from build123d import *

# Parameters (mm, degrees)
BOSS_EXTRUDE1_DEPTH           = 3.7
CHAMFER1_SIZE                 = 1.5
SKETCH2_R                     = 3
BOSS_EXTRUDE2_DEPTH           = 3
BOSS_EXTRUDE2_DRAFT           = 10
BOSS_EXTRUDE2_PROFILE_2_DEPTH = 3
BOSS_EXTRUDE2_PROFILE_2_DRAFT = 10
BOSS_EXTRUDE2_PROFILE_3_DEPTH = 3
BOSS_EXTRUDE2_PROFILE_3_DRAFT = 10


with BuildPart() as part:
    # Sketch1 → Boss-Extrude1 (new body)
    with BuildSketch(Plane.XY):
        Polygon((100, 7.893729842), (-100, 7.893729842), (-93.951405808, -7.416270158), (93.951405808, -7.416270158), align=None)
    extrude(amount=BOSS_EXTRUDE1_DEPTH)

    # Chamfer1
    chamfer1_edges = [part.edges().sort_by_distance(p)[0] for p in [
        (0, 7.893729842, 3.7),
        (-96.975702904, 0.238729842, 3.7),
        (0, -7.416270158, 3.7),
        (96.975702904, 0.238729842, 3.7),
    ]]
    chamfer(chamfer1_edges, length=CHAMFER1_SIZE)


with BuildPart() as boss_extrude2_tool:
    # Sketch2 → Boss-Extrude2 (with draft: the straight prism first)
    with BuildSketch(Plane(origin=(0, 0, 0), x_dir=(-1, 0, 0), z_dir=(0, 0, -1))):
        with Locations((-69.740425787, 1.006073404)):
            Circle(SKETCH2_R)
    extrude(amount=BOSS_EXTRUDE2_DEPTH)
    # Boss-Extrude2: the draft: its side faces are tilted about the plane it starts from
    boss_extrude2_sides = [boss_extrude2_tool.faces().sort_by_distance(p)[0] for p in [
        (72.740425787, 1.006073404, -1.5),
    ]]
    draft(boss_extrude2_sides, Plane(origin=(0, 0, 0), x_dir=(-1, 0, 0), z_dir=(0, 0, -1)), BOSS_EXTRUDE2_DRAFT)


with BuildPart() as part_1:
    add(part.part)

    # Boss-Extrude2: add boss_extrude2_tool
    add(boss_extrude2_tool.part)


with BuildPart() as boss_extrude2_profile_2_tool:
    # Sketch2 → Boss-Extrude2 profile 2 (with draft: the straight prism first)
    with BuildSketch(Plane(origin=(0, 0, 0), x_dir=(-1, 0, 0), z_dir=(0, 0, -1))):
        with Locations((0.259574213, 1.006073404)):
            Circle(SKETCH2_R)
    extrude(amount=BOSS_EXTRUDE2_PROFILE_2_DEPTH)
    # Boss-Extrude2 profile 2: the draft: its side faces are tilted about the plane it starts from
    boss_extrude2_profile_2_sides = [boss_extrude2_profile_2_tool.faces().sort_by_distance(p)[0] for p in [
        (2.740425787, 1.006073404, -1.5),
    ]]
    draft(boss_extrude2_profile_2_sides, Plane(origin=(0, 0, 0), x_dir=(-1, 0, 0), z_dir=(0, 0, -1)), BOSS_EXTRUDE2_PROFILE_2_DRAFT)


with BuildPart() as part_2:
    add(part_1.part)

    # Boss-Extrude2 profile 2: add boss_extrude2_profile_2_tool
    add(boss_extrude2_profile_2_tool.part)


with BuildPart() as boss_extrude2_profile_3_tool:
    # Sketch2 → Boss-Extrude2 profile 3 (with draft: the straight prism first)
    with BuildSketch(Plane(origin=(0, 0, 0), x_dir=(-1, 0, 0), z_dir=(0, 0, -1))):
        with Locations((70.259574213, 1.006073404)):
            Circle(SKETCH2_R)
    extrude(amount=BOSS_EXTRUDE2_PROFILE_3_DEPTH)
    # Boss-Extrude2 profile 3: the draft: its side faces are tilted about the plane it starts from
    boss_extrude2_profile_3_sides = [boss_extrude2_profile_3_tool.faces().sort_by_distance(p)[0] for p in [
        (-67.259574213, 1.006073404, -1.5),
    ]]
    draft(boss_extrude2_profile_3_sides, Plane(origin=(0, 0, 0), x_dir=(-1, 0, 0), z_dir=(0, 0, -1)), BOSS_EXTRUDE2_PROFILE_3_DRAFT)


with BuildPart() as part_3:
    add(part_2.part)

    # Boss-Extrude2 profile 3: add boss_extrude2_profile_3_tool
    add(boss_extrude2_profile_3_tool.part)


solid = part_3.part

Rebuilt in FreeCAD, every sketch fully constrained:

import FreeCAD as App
import Part
import Sketcher
from FreeCAD import Vector


def edges_at(feature, points):
    """Names of the edges that pass closest to the given points."""
    edges = feature.Shape.Edges
    near = lambda p: min(range(len(edges)), key=lambda i: edges[i].distToShape(Part.Vertex(*p))[0])
    return sorted({f"Edge{near(p) + 1}" for p in points})


def faces_at(feature, points):
    """Names of the faces that lie closest to the given points."""
    faces = feature.Shape.Faces
    near = lambda p: min(range(len(faces)), key=lambda i: faces[i].distToShape(Part.Vertex(*p))[0])
    return sorted({f"Face{near(p) + 1}" for p in points})

doc = App.newDocument("Part")
params = doc.addObject("Spreadsheet::Sheet", "Params")
for row, (alias, value) in enumerate([
    ("sketch1_width", "200 mm"),
    ("pad1_length", "3.7 mm"),
    ("chamfer_size", "1.5 mm"),
    ("sketch2_diameter", "6 mm"),
    ("pad2_length", "3 mm"),
    ("draft_angle", "10 deg"),
    ("sketch3_diameter", "6 mm"),
    ("pad3_length", "3 mm"),
    ("draft2_angle", "10 deg"),
    ("sketch4_diameter", "6 mm"),
    ("pad4_length", "3 mm"),
    ("draft3_angle", "10 deg"),
], start=1):
    params.set(f"A{row}", alias)
    params.set(f"B{row}", "=" + value)
    params.setAlias(f"B{row}", alias)

body = doc.addObject("PartDesign::Body", "Body")

# Sketch on XY plane
sketch1 = doc.addObject("Sketcher::SketchObject", "Sketch")
body.addObject(sketch1)
sketch1.AttachmentSupport = (doc.XY_Plane, [""])
sketch1.MapMode = "FlatFace"
sketch1.addGeometry([
    Part.LineSegment(Vector(100, 7.89373, 0), Vector(-100, 7.89373, 0)),
    Part.LineSegment(Vector(-100, 7.89373, 0), Vector(-93.951406, -7.41627, 0)),
    Part.LineSegment(Vector(-93.951406, -7.41627, 0), Vector(93.951406, -7.41627, 0)),
    Part.LineSegment(Vector(93.951406, -7.41627, 0), Vector(100, 7.89373, 0)),
], False)
sketch1.addConstraint([
    Sketcher.Constraint("Coincident", 0, 2, 1, 1),
    Sketcher.Constraint("Coincident", 1, 2, 2, 1),
    Sketcher.Constraint("Coincident", 2, 2, 3, 1),
    Sketcher.Constraint("Coincident", 3, 2, 0, 1),
    Sketcher.Constraint("Horizontal", 0),
    Sketcher.Constraint("Horizontal", 2),
    Sketcher.Constraint("Equal", 1, 3),
    Sketcher.Constraint("DistanceX", 0, 2, 0, 1, 200.0),
    Sketcher.Constraint("DistanceX", 0, 2, -1, 1, 100.0),
    Sketcher.Constraint("DistanceY", 1, 2, 0, 2, 15.31),
    Sketcher.Constraint("DistanceX", 2, 1, 2, 2, 187.902812),
    Sketcher.Constraint("DistanceY", -1, 1, 0, 2, 7.89373),
])
sketch1.setExpression("Constraints[7]", "Params.sketch1_width")
pad1 = doc.addObject("PartDesign::Pad", "Pad")
body.addObject(pad1)
pad1.Profile = sketch1
pad1.setExpression("Length", "Params.pad1_length")
doc.recompute()

chamfer = doc.addObject("PartDesign::Chamfer", "Chamfer")
body.addObject(chamfer)
chamfer.Base = (pad1, edges_at(pad1, [
    (0, 7.894, 3.7),
    (-96.976, 0.239, 3.7),
    (0, -7.416, 3.7),
    (96.976, 0.239, 3.7),
]))
chamfer.setExpression("Size", "Params.chamfer_size")
body2 = doc.addObject("PartDesign::Body", "Body001")

# Sketch on XY plane
sketch2 = doc.addObject("Sketcher::SketchObject", "Sketch001")
body2.addObject(sketch2)
sketch2.AttachmentSupport = (doc.getObject("XY_Plane001"), [""])
sketch2.MapMode = "FlatFace"
sketch2.addGeometry(Part.Circle(Vector(69.740426, 1.006073, 0), Vector(0, 0, 1), 3), False)
sketch2.addConstraint([
    Sketcher.Constraint("Diameter", 0, 6.0),
    Sketcher.Constraint("DistanceX", -1, 1, 0, 3, 69.740426),
    Sketcher.Constraint("DistanceY", -1, 1, 0, 3, 1.006073),
])
sketch2.setExpression("Constraints[0]", "Params.sketch2_diameter")
pad2 = doc.addObject("PartDesign::Pad", "Pad001")
body2.addObject(pad2)
pad2.Profile = sketch2
pad2.setExpression("Length", "Params.pad2_length")
pad2.Reversed = True
doc.recompute()

draft = doc.addObject("PartDesign::Draft", "Draft")
body2.addObject(draft)
draft.Base = (pad2, faces_at(pad2, [(72.74, 1.006, -1.5)]))
draft.NeutralPlane = (doc.getObject("XY_Plane001"), [""])
draft.setExpression("Angle", "Params.draft_angle")
draft.Reversed = True
doc.recompute()

boolean = doc.addObject("PartDesign::Boolean", "Boolean")
body.addObject(boolean)
boolean.Type = "Fuse"
boolean.addObjects([body2])
body3 = doc.addObject("PartDesign::Body", "Body002")

# Sketch on XY plane
sketch3 = doc.addObject("Sketcher::SketchObject", "Sketch002")
body3.addObject(sketch3)
sketch3.AttachmentSupport = (doc.getObject("XY_Plane002"), [""])
sketch3.MapMode = "FlatFace"
sketch3.addGeometry(Part.Circle(Vector(-0.259574, 1.006073, 0), Vector(0, 0, 1), 3), False)
sketch3.addConstraint([
    Sketcher.Constraint("Diameter", 0, 6.0),
    Sketcher.Constraint("DistanceX", 0, 3, -1, 1, 0.259574),
    Sketcher.Constraint("DistanceY", -1, 1, 0, 3, 1.006073),
])
sketch3.setExpression("Constraints[0]", "Params.sketch3_diameter")
pad3 = doc.addObject("PartDesign::Pad", "Pad002")
body3.addObject(pad3)
pad3.Profile = sketch3
pad3.setExpression("Length", "Params.pad3_length")
pad3.Reversed = True
doc.recompute()

draft2 = doc.addObject("PartDesign::Draft", "Draft001")
body3.addObject(draft2)
draft2.Base = (pad3, faces_at(pad3, [(2.74, 1.006, -1.5)]))
draft2.NeutralPlane = (doc.getObject("XY_Plane002"), [""])
draft2.setExpression("Angle", "Params.draft2_angle")
draft2.Reversed = True
doc.recompute()

boolean2 = doc.addObject("PartDesign::Boolean", "Boolean001")
body.addObject(boolean2)
boolean2.Type = "Fuse"
boolean2.addObjects([body3])
body4 = doc.addObject("PartDesign::Body", "Body003")

# Sketch on XY plane
sketch4 = doc.addObject("Sketcher::SketchObject", "Sketch003")
body4.addObject(sketch4)
sketch4.AttachmentSupport = (doc.getObject("XY_Plane003"), [""])
sketch4.MapMode = "FlatFace"
sketch4.addGeometry(Part.Circle(Vector(-70.259574, 1.006073, 0), Vector(0, 0, 1), 3), False)
sketch4.addConstraint([
    Sketcher.Constraint("Diameter", 0, 6.0),
    Sketcher.Constraint("DistanceX", 0, 3, -1, 1, 70.259574),
    Sketcher.Constraint("DistanceY", -1, 1, 0, 3, 1.006073),
])
sketch4.setExpression("Constraints[0]", "Params.sketch4_diameter")
pad4 = doc.addObject("PartDesign::Pad", "Pad003")
body4.addObject(pad4)
pad4.Profile = sketch4
pad4.setExpression("Length", "Params.pad4_length")
pad4.Reversed = True
doc.recompute()

draft3 = doc.addObject("PartDesign::Draft", "Draft002")
body4.addObject(draft3)
draft3.Base = (pad4, faces_at(pad4, [(-67.26, 1.006, -1.5)]))
draft3.NeutralPlane = (doc.getObject("XY_Plane003"), [""])
draft3.setExpression("Angle", "Params.draft3_angle")
draft3.Reversed = True
doc.recompute()

boolean3 = doc.addObject("PartDesign::Boolean", "Boolean002")
body.addObject(boolean3)
boolean3.Type = "Fuse"
boolean3.addObjects([body4])

doc.recompute()
